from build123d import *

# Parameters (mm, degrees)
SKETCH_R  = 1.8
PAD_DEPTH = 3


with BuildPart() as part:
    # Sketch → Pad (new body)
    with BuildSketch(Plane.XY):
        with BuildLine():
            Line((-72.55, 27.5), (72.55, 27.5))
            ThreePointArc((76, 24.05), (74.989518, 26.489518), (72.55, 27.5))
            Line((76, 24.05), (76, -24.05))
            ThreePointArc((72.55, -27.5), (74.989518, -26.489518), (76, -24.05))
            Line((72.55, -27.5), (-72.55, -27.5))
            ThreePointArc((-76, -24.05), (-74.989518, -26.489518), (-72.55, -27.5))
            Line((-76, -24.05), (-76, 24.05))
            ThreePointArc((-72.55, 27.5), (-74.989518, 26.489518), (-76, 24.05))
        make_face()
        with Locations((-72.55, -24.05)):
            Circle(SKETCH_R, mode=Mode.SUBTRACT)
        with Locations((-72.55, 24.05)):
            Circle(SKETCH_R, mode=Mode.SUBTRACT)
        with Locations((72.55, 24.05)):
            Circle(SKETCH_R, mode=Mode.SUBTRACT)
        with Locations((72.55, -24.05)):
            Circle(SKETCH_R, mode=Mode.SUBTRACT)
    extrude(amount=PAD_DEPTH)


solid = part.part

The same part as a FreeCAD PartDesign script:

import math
import FreeCAD as App
import Part
import Sketcher
from FreeCAD import Vector
Q = App.Units.Quantity

doc = App.newDocument("Part")
body = doc.addObject("PartDesign::Body", "Body")

# Sketch on XY plane
sketch1 = body.newObject("Sketcher::SketchObject", "Sketch")
sketch1.AttachmentSupport = (doc.getObject("XY_Plane"), [""])
sketch1.MapMode = "FlatFace"
sketch1.addGeometry(Part.LineSegment(Vector(72.5, 27.5, 0), Vector(-72.5, 27.5, 0)), False)
sketch1.addGeometry(Part.ArcOfCircle(Part.Circle(Vector(-72.5, 24, 0), Vector(0, 0, 1), 3.5), math.radians(90), math.radians(180)), False)
sketch1.addGeometry(Part.LineSegment(Vector(-76, 24.1, 0), Vector(-76, -24.1, 0)), False)
sketch1.addGeometry(Part.ArcOfCircle(Part.Circle(Vector(-72.5, -24, 0), Vector(0, 0, 1), 3.5), math.radians(-180), math.radians(-90)), False)
sketch1.addGeometry(Part.LineSegment(Vector(-72.5, -27.5, 0), Vector(72.5, -27.5, 0)), False)
sketch1.addGeometry(Part.ArcOfCircle(Part.Circle(Vector(72.5, -24, 0), Vector(0, 0, 1), 3.5), math.radians(-90), math.radians(0)), False)
sketch1.addGeometry(Part.LineSegment(Vector(76, -24.1, 0), Vector(76, 24.1, 0)), False)
sketch1.addGeometry(Part.ArcOfCircle(Part.Circle(Vector(72.5, 24, 0), Vector(0, 0, 1), 3.5), math.radians(0), math.radians(90)), False)
sketch1.addGeometry(Part.Circle(Vector(72.5, -24.1, 0), Vector(0, 0, 1), 1.8), False)
sketch1.addGeometry(Part.Circle(Vector(-72.5, -24.1, 0), Vector(0, 0, 1), 1.8), False)
sketch1.addGeometry(Part.Circle(Vector(72.5, 24.1, 0), Vector(0, 0, 1), 1.8), False)
sketch1.addGeometry(Part.Circle(Vector(-72.5, 24.1, 0), Vector(0, 0, 1), 1.8), False)
sketch1.addConstraint(Sketcher.Constraint("Tangent", 0, 2, 1, 1))
sketch1.addConstraint(Sketcher.Constraint("Tangent", 1, 2, 2, 1))
sketch1.addConstraint(Sketcher.Constraint("Tangent", 2, 2, 3, 1))
sketch1.addConstraint(Sketcher.Constraint("Tangent", 3, 2, 4, 1))
sketch1.addConstraint(Sketcher.Constraint("Tangent", 4, 2, 5, 1))
sketch1.addConstraint(Sketcher.Constraint("Tangent", 5, 2, 6, 1))
sketch1.addConstraint(Sketcher.Constraint("Tangent", 6, 2, 7, 1))
sketch1.addConstraint(Sketcher.Constraint("Tangent", 7, 2, 0, 1))
sketch1.addConstraint(Sketcher.Constraint("Horizontal", 0))
sketch1.addConstraint(Sketcher.Constraint("Vertical", 2))
sketch1.addConstraint(Sketcher.Constraint("Horizontal", 4))
sketch1.addConstraint(Sketcher.Constraint("Vertical", 6))
sketch1.addConstraint(Sketcher.Constraint("Coincident", 8, 3, 5, 3))
sketch1.addConstraint(Sketcher.Constraint("Coincident", 9, 3, 3, 3))
sketch1.addConstraint(Sketcher.Constraint("Coincident", 10, 3, 7, 3))
sketch1.addConstraint(Sketcher.Constraint("Coincident", 11, 3, 1, 3))
sketch1.addConstraint(Sketcher.Constraint("Equal", 1, 3))
sketch1.addConstraint(Sketcher.Constraint("Equal", 3, 5))
sketch1.addConstraint(Sketcher.Constraint("Equal", 5, 7))
sketch1.addConstraint(Sketcher.Constraint("Equal", 8, 9))
sketch1.addConstraint(Sketcher.Constraint("Equal", 9, 10))
sketch1.addConstraint(Sketcher.Constraint("Equal", 10, 11))
sketch1.addConstraint(Sketcher.Constraint("Symmetric", 1, 3, 5, 3, -1, 1))
sketch1.addConstraint(Sketcher.Constraint("Diameter", 8, Q("3.6 mm")))
sketch1.addConstraint(Sketcher.Constraint("Radius", 1, Q("3.450001 mm")))
sketch1.addConstraint(Sketcher.Constraint("DistanceX", 0, 2, 0, 1, Q("145.1 mm")))
sketch1.addConstraint(Sketcher.Constraint("DistanceY", 2, 2, 2, 1, Q("48.1 mm")))
pad1 = body.newObject("PartDesign::Pad", "Pad")
pad1.Profile = sketch1
pad1.Length = 3

doc.recompute()
